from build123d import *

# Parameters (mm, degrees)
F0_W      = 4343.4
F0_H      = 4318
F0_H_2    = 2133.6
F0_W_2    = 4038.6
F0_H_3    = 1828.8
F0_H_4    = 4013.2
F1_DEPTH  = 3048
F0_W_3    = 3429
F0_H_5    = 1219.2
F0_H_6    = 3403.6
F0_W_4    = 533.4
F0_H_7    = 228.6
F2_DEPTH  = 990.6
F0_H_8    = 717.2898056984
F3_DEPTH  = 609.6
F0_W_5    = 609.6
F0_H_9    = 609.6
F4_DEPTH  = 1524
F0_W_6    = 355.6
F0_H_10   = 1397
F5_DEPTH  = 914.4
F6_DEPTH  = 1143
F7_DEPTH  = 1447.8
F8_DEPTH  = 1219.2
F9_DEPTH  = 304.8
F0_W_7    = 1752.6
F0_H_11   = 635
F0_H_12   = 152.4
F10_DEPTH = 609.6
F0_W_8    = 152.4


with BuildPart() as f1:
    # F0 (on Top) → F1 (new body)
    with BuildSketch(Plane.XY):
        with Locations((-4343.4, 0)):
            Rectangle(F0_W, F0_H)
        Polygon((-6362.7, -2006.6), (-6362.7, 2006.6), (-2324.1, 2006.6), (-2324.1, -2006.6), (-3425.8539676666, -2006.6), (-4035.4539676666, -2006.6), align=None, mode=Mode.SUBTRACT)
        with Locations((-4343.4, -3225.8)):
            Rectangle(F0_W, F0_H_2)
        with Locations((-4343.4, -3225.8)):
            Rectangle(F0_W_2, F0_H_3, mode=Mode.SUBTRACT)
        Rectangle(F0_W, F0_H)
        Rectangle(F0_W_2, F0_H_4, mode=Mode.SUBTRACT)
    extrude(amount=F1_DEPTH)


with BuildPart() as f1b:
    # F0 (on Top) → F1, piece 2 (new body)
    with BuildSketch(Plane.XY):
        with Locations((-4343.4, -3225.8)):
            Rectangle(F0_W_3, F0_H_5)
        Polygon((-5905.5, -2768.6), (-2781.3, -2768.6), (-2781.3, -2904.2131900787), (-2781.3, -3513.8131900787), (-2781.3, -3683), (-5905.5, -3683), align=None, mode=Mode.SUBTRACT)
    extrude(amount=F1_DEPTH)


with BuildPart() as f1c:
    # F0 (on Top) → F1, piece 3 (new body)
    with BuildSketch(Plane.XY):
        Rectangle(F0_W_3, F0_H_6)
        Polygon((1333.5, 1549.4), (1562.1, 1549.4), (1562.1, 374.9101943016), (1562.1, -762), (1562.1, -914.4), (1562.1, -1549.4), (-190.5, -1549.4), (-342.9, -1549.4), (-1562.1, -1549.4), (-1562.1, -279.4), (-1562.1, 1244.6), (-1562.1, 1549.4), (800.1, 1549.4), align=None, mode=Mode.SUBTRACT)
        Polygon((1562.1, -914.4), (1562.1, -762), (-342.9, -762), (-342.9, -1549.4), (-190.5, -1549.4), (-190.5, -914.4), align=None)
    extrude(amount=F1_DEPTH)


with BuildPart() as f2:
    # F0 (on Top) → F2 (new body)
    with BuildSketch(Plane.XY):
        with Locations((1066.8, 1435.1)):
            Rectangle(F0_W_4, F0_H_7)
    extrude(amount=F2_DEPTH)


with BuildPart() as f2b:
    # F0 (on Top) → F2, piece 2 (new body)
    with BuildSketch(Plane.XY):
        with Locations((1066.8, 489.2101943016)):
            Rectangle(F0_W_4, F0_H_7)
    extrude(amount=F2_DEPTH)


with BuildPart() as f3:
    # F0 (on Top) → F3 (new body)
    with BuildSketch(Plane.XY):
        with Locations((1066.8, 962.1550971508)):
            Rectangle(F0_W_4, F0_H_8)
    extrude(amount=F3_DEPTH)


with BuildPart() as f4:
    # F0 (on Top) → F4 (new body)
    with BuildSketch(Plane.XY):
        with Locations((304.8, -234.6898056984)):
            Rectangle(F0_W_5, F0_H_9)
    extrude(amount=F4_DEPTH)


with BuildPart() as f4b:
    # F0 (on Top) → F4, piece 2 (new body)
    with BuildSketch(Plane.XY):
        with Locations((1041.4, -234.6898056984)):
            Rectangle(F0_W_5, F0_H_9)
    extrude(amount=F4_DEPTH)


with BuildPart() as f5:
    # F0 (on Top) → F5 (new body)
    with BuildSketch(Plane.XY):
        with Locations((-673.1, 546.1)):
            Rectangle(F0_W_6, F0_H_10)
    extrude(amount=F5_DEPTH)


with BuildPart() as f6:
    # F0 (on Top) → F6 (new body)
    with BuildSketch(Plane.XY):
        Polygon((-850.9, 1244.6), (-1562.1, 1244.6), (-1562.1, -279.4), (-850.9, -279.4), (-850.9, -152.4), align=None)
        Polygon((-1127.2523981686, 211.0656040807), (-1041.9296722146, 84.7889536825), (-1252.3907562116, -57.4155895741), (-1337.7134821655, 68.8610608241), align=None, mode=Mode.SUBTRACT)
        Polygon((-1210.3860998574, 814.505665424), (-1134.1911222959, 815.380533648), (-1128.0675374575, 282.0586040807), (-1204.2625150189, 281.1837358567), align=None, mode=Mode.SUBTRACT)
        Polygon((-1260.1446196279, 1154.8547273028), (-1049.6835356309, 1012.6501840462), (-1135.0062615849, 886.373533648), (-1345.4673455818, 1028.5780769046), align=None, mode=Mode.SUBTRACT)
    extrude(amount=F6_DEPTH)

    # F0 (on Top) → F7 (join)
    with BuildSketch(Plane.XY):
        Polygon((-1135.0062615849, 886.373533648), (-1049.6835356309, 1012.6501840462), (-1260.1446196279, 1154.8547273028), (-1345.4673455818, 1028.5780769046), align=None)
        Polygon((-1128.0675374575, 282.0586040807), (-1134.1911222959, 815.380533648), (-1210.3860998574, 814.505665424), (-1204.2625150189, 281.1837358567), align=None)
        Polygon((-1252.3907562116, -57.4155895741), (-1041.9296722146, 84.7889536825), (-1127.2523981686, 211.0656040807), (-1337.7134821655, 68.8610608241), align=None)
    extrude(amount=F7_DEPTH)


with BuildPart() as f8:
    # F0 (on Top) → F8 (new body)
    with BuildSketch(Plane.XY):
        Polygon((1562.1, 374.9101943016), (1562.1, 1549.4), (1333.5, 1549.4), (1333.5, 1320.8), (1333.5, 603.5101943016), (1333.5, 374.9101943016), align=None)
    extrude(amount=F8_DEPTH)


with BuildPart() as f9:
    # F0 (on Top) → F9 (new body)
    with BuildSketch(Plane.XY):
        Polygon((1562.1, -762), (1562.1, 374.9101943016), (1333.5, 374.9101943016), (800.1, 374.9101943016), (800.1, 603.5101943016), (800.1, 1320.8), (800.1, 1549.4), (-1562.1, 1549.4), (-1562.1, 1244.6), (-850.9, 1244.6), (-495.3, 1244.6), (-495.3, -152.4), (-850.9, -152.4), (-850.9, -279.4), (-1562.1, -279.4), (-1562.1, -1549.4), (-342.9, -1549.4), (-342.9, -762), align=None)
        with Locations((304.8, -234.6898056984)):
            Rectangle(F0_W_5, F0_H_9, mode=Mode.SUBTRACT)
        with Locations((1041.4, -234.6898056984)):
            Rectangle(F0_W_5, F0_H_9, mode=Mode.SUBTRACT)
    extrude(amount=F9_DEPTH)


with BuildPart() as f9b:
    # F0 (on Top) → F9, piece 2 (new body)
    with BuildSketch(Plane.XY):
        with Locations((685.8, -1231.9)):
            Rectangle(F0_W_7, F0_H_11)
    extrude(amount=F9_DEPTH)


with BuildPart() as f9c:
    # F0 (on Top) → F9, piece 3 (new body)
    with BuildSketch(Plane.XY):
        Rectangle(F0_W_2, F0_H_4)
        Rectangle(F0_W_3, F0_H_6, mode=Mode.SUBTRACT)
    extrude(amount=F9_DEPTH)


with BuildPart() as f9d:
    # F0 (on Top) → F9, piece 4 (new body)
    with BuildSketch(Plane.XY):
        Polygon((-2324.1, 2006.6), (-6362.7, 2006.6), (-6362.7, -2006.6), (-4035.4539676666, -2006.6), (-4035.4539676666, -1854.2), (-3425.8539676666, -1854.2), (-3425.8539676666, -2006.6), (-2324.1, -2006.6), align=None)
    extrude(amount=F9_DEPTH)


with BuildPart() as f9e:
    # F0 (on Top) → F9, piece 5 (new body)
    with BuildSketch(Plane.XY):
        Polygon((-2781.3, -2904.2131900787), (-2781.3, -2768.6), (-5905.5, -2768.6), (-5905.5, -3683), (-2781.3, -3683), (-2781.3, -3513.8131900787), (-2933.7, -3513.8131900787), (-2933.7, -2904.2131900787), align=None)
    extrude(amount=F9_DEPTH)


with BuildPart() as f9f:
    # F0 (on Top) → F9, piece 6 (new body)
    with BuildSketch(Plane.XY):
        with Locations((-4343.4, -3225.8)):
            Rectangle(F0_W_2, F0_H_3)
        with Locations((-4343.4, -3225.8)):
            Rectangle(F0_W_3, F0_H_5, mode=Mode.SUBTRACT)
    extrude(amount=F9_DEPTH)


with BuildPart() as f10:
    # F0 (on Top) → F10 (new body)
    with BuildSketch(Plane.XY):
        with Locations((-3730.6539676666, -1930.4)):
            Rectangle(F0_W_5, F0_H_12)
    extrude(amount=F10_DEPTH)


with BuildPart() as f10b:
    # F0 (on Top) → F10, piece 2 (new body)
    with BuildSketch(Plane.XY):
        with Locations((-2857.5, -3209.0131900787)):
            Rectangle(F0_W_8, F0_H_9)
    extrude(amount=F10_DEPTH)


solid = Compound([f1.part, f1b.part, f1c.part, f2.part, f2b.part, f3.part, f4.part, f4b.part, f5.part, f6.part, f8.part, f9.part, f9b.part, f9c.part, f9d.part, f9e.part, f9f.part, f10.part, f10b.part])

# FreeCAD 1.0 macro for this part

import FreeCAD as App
import Part
import Sketcher

V = App.Vector
Q = App.Units.Quantity

doc = App.newDocument("Part")
body = doc.addObject("PartDesign::Body", "Body")

# Sketch on XY plane
sketch1 = doc.addObject("Sketcher::SketchObject", "Sketch")
body.addObject(sketch1)
sketch1.AttachmentSupport = (doc.XY_Plane, [""])
sketch1.MapMode = "FlatFace"
sketch1.addGeometry([
    Part.LineSegment(V(-6515, 2159, 0), V(-6515, -4293, 0)),  # 0
    Part.LineSegment(V(-6515, -4293, 0), V(-2172, -4293, 0)),  # 1
    Part.LineSegment(V(-2172, -4293, 0), V(-2172, -2159, 0)),  # 2
    Part.LineSegment(V(-2172, -2159, 0), V(2172, -2159, 0)),  # 3
    Part.LineSegment(V(2172, -2159, 0), V(2172, 2159, 0)),  # 4
    Part.LineSegment(V(2172, 2159, 0), V(-6515, 2159, 0)),  # 5
    Part.LineSegment(V(-2324, -4140, 0), V(-6363, -4140, 0)),  # 6
    Part.LineSegment(V(-6363, -4140, 0), V(-6363, -2311, 0)),  # 7
    Part.LineSegment(V(-6363, -2311, 0), V(-2324, -2311, 0)),  # 8
    Part.LineSegment(V(-2324, -2311, 0), V(-2324, -4140, 0)),  # 9
    Part.LineSegment(V(-2324, -2007, 0), V(-6363, -2007, 0)),  # 10
    Part.LineSegment(V(-6363, -2007, 0), V(-6363, 2007, 0)),  # 11
    Part.LineSegment(V(-6363, 2007, 0), V(-2324, 2007, 0)),  # 12
    Part.LineSegment(V(-2324, 2007, 0), V(-2324, -2007, 0)),  # 13
    Part.LineSegment(V(2019, -2007, 0), V(-2019, -2007, 0)),  # 14
    Part.LineSegment(V(-2019, -2007, 0), V(-2019, 2007, 0)),  # 15
    Part.LineSegment(V(-2019, 2007, 0), V(2019, 2007, 0)),  # 16
    Part.LineSegment(V(2019, 2007, 0), V(2019, -2007, 0)),  # 17
], False)
sketch1.addConstraint([
    Sketcher.Constraint("Coincident", 0, 2, 1, 1),
    Sketcher.Constraint("Coincident", 1, 2, 2, 1),
    Sketcher.Constraint("Coincident", 2, 2, 3, 1),
    Sketcher.Constraint("Coincident", 3, 2, 4, 1),
    Sketcher.Constraint("Coincident", 4, 2, 5, 1),
    Sketcher.Constraint("Coincident", 5, 2, 0, 1),
    Sketcher.Constraint("Coincident", 6, 2, 7, 1),
    Sketcher.Constraint("Coincident", 7, 2, 8, 1),
    Sketcher.Constraint("Coincident", 8, 2, 9, 1),
    Sketcher.Constraint("Coincident", 9, 2, 6, 1),
    Sketcher.Constraint("Coincident", 10, 2, 11, 1),
    Sketcher.Constraint("Coincident", 11, 2, 12, 1),
    Sketcher.Constraint("Coincident", 12, 2, 13, 1),
    Sketcher.Constraint("Coincident", 13, 2, 10, 1),
    Sketcher.Constraint("Coincident", 14, 2, 15, 1),
    Sketcher.Constraint("Coincident", 15, 2, 16, 1),
    Sketcher.Constraint("Coincident", 16, 2, 17, 1),
    Sketcher.Constraint("Coincident", 17, 2, 14, 1),
    Sketcher.Constraint("Vertical", 0),
    Sketcher.Constraint("Horizontal", 1),
    Sketcher.Constraint("Vertical", 2),
    Sketcher.Constraint("Horizontal", 3),
    Sketcher.Constraint("Vertical", 4),
    Sketcher.Constraint("Horizontal", 5),
    Sketcher.Constraint("Horizontal", 6),
    Sketcher.Constraint("Vertical", 7),
    Sketcher.Constraint("Horizontal", 8),
    Sketcher.Constraint("Vertical", 9),
    Sketcher.Constraint("Horizontal", 10),
    Sketcher.Constraint("Vertical", 11),
    Sketcher.Constraint("Horizontal", 12),
    Sketcher.Constraint("Vertical", 13),
    Sketcher.Constraint("Horizontal", 14),
    Sketcher.Constraint("Vertical", 15),
    Sketcher.Constraint("Horizontal", 16),
    Sketcher.Constraint("Vertical", 17),
    Sketcher.Constraint("Symmetric", 2, 2, 4, 2, -1, 1),
    Sketcher.Constraint("Symmetric", 14, 2, 16, 2, -1, 1),
    Sketcher.Constraint("Horizontal", 13, 2, 14, 2),
    Sketcher.Constraint("Horizontal", 12, 2, 15, 2),
    Sketcher.Constraint("Vertical", 7, 2, 10, 2),
    Sketcher.Constraint("Vertical", 9, 2, 12, 2),
    Sketcher.Constraint("Equal", 1, 3),
    Sketcher.Constraint("Equal", 12, 14),
    Sketcher.Constraint("DistanceX", 1, 1, 1, 2, Q("171 in")),
    Sketcher.Constraint("DistanceX", 6, 2, 6, 1, Q("159 in")),
    Sketcher.Constraint("DistanceY", 0, 2, 0, 1, Q("254 in")),
    Sketcher.Constraint("DistanceY", 2, 1, 2, 2, Q("84 in")),
    Sketcher.Constraint("DistanceY", 7, 1, 7, 2, Q("72 in")),
    Sketcher.Constraint("DistanceY", 11, 1, 11, 2, Q("158 in")),
    Sketcher.Constraint("DistanceY", 6, 2, -1, 1, Q("163 in")),
    Sketcher.Constraint("DistanceX", 0, 2, 6, 2, Q("6 in")),
])
pad1 = doc.addObject("PartDesign::Pad", "Pad")
body.addObject(pad1)
pad1.Profile = sketch1
pad1.Length = Q("120 in")
body2 = doc.addObject("PartDesign::Body", "Body001")

# Sketch on XY plane
sketch2 = doc.addObject("Sketcher::SketchObject", "Sketch001")
body2.addObject(sketch2)
sketch2.AttachmentSupport = (doc.getObject("XY_Plane001"), [""])
sketch2.MapMode = "FlatFace"
sketch2.addGeometry([
    Part.LineSegment(V(-6058, -2616, 0), V(-6058, -3835, 0)),  # 0
    Part.LineSegment(V(-6058, -3835, 0), V(-2629, -3835, 0)),  # 1
    Part.LineSegment(V(-2629, -3835, 0), V(-2629, -2616, 0)),  # 2
    Part.LineSegment(V(-2629, -2616, 0), V(-6058, -2616, 0)),  # 3
    Part.LineSegment(V(-5906, -3683, 0), V(-5906, -2769, 0)),  # 4
    Part.LineSegment(V(-5906, -2769, 0), V(-2781, -2769, 0)),  # 5
    Part.LineSegment(V(-2781, -2769, 0), V(-2781, -3683, 0)),  # 6
    Part.LineSegment(V(-2781, -3683, 0), V(-5906, -3683, 0)),  # 7
], False)
sketch2.addConstraint([
    Sketcher.Constraint("Coincident", 0, 2, 1, 1),
    Sketcher.Constraint("Coincident", 1, 2, 2, 1),
    Sketcher.Constraint("Coincident", 2, 2, 3, 1),
    Sketcher.Constraint("Coincident", 3, 2, 0, 1),
    Sketcher.Constraint("Coincident", 4, 2, 5, 1),
    Sketcher.Constraint("Coincident", 5, 2, 6, 1),
    Sketcher.Constraint("Coincident", 6, 2, 7, 1),
    Sketcher.Constraint("Coincident", 7, 2, 4, 1),
    Sketcher.Constraint("Vertical", 0),
    Sketcher.Constraint("Horizontal", 1),
    Sketcher.Constraint("Vertical", 2),
    Sketcher.Constraint("Horizontal", 3),
    Sketcher.Constraint("Vertical", 4),
    Sketcher.Constraint("Horizontal", 5),
    Sketcher.Constraint("Vertical", 6),
    Sketcher.Constraint("Horizontal", 7),
    Sketcher.Constraint("DistanceX", 1, 1, 1, 2, Q("135 in")),
    Sketcher.Constraint("DistanceX", 5, 1, 5, 2, Q("123 in")),
    Sketcher.Constraint("DistanceY", 0, 2, 0, 1, Q("48 in")),
    Sketcher.Constraint("DistanceY", 4, 1, 4, 2, Q("36 in")),
    Sketcher.Constraint("DistanceY", 0, 2, -1, 1, Q("151 in")),
    Sketcher.Constraint("DistanceY", 4, 2, -1, 1, Q("109 in")),
    Sketcher.Constraint("DistanceX", 3, 2, 4, 2, Q("6 in")),
    Sketcher.Constraint("DistanceX", 0, 2, -1, 1, Q("238.5 in")),
])
pad2 = doc.addObject("PartDesign::Pad", "Pad001")
body2.addObject(pad2)
pad2.Profile = sketch2
pad2.Length = Q("120 in")
body3 = doc.addObject("PartDesign::Body", "Body002")

# Sketch on XY plane
sketch3 = doc.addObject("Sketcher::SketchObject", "Sketch002")
body3.addObject(sketch3)
sketch3.AttachmentSupport = (doc.getObject("XY_Plane002"), [""])
sketch3.MapMode = "FlatFace"
sketch3.addGeometry([
    Part.LineSegment(V(-1714, 1702, 0), V(-1714, -1702, 0)),  # 0
    Part.LineSegment(V(-1714, -1702, 0), V(1714, -1702, 0)),  # 1
    Part.LineSegment(V(1714, -1702, 0), V(1714, 1702, 0)),  # 2
    Part.LineSegment(V(1714, 1702, 0), V(-1714, 1702, 0)),  # 3
    Part.LineSegment(V(-1562, 1549, 0), V(1562, 1549, 0)),  # 4
    Part.LineSegment(V(1562, 1549, 0), V(1562, -762, 0)),  # 5
    Part.LineSegment(V(1562, -762, 0), V(-343, -762, 0)),  # 6
    Part.LineSegment(V(-343, -762, 0), V(-343, -1549, 0)),  # 7
    Part.LineSegment(V(-343, -1549, 0), V(-1562, -1549, 0)),  # 8
    Part.LineSegment(V(-1562, -1549, 0), V(-1562, 1549, 0)),  # 9
    Part.LineSegment(V(1562, -914, 0), V(1562, -1549, 0)),  # 10
    Part.LineSegment(V(1562, -1549, 0), V(-190, -1549, 0)),  # 11
    Part.LineSegment(V(-190, -1549, 0), V(-190, -914, 0)),  # 12
    Part.LineSegment(V(-190, -914, 0), V(1562, -914, 0)),  # 13
], False)
sketch3.addConstraint([
    Sketcher.Constraint("Coincident", 0, 2, 1, 1),
    Sketcher.Constraint("Coincident", 1, 2, 2, 1),
    Sketcher.Constraint("Coincident", 2, 2, 3, 1),
    Sketcher.Constraint("Coincident", 3, 2, 0, 1),
    Sketcher.Constraint("Coincident", 4, 2, 5, 1),
    Sketcher.Constraint("Coincident", 5, 2, 6, 1),
    Sketcher.Constraint("Coincident", 6, 2, 7, 1),
    Sketcher.Constraint("Coincident", 7, 2, 8, 1),
    Sketcher.Constraint("Coincident", 8, 2, 9, 1),
    Sketcher.Constraint("Coincident", 9, 2, 4, 1),
    Sketcher.Constraint("Coincident", 10, 2, 11, 1),
    Sketcher.Constraint("Coincident", 11, 2, 12, 1),
    Sketcher.Constraint("Coincident", 12, 2, 13, 1),
    Sketcher.Constraint("Coincident", 13, 2, 10, 1),
    Sketcher.Constraint("Vertical", 0),
    Sketcher.Constraint("Horizontal", 1),
    Sketcher.Constraint("Vertical", 2),
    Sketcher.Constraint("Horizontal", 3),
    Sketcher.Constraint("Horizontal", 4),
    Sketcher.Constraint("Vertical", 5),
    Sketcher.Constraint("Horizontal", 6),
    Sketcher.Constraint("Vertical", 7),
    Sketcher.Constraint("Horizontal", 8),
    Sketcher.Constraint("Vertical", 9),
    Sketcher.Constraint("Vertical", 10),
    Sketcher.Constraint("Horizontal", 11),
    Sketcher.Constraint("Vertical", 12),
    Sketcher.Constraint("Horizontal", 13),
    Sketcher.Constraint("Symmetric", 0, 2, 2, 2, -1, 1),
    Sketcher.Constraint("Symmetric", 4, 2, 8, 2, -1, 1),
    Sketcher.Constraint("Symmetric", 9, 2, 10, 2, -1, 1),
    Sketcher.Constraint("DistanceX", 1, 1, 1, 2, Q("135 in")),
    Sketcher.Constraint("DistanceX", 4, 1, 4, 2, Q("123 in")),
    Sketcher.Constraint("DistanceX", 6, 2, 6, 1, Q("75 in")),
    Sketcher.Constraint("DistanceX", 11, 2, 11, 1, Q("69 in")),
    Sketcher.Constraint("DistanceY", 0, 2, 0, 1, Q("134 in")),
    Sketcher.Constraint("DistanceY", 5, 2, 5, 1, Q("91 in")),
    Sketcher.Constraint("DistanceY", 7, 2, 7, 1, Q("31 in")),
    Sketcher.Constraint("DistanceY", 10, 2, 10, 1, Q("25 in")),
])
pad3 = doc.addObject("PartDesign::Pad", "Pad002")
body3.addObject(pad3)
pad3.Profile = sketch3
pad3.Length = Q("120 in")
body4 = doc.addObject("PartDesign::Body", "Body003")

# Sketch on XY plane
sketch4 = doc.addObject("Sketcher::SketchObject", "Sketch003")
body4.addObject(sketch4)
sketch4.AttachmentSupport = (doc.getObject("XY_Plane003"), [""])
sketch4.MapMode = "FlatFace"
sketch4.addGeometry([
    Part.LineSegment(V(800, 1549, 0), V(800, 1321, 0)),
    Part.LineSegment(V(800, 1321, 0), V(1334, 1321, 0)),
    Part.LineSegment(V(1334, 1321, 0), V(1334, 1549, 0)),
    Part.LineSegment(V(1334, 1549, 0), V(800, 1549, 0)),
], False)
sketch4.addConstraint([
    Sketcher.Constraint("Coincident", 0, 2, 1, 1),
    Sketcher.Constraint("Coincident", 1, 2, 2, 1),
    Sketcher.Constraint("Coincident", 2, 2, 3, 1),
    Sketcher.Constraint("Coincident", 3, 2, 0, 1),
    Sketcher.Constraint("Vertical", 0),
    Sketcher.Constraint("Horizontal", 1),
    Sketcher.Constraint("Vertical", 2),
    Sketcher.Constraint("Horizontal", 3),
    Sketcher.Constraint("DistanceX", 1, 1, 1, 2, Q("21 in")),
    Sketcher.Constraint("DistanceY", 0, 2, 0, 1, Q("9 in")),
    Sketcher.Constraint("DistanceY", -1, 1, 0, 2, Q("52 in")),
    Sketcher.Constraint("DistanceX", -1, 1, 0, 2, Q("31.5 in")),
])
pad4 = doc.addObject("PartDesign::Pad", "Pad003")
body4.addObject(pad4)
pad4.Profile = sketch4
pad4.Length = Q("39 in")
body5 = doc.addObject("PartDesign::Body", "Body004")

# Sketch on XY plane
sketch5 = doc.addObject("Sketcher::SketchObject", "Sketch004")
body5.addObject(sketch5)
sketch5.AttachmentSupport = (doc.getObject("XY_Plane004"), [""])
sketch5.MapMode = "FlatFace"
sketch5.addGeometry([
    Part.LineSegment(V(800, 604, 0), V(800, 375, 0)),
    Part.LineSegment(V(800, 375, 0), V(1334, 375, 0)),
    Part.LineSegment(V(1334, 375, 0), V(1334, 604, 0)),
    Part.LineSegment(V(1334, 604, 0), V(800, 604, 0)),
], False)
sketch5.addConstraint([
    Sketcher.Constraint("Coincident", 0, 2, 1, 1),
    Sketcher.Constraint("Coincident", 1, 2, 2, 1),
    Sketcher.Constraint("Coincident", 2, 2, 3, 1),
    Sketcher.Constraint("Coincident", 3, 2, 0, 1),
    Sketcher.Constraint("Vertical", 0),
    Sketcher.Constraint("Horizontal", 1),
    Sketcher.Constraint("Vertical", 2),
    Sketcher.Constraint("Horizontal", 3),
    Sketcher.Constraint("DistanceX", 1, 1, 1, 2, Q("21 in")),
    Sketcher.Constraint("DistanceY", 0, 2, 0, 1, Q("9 in")),
    Sketcher.Constraint("DistanceX", -1, 1, 0, 2, Q("31.5 in")),
    Sketcher.Constraint("DistanceY", -1, 1, 0, 2, Q("374.910194 mm")),
])
pad5 = doc.addObject("PartDesign::Pad", "Pad004")
body5.addObject(pad5)
pad5.Profile = sketch5
pad5.Length = Q("39 in")
body6 = doc.addObject("PartDesign::Body", "Body005")

# Sketch on XY plane
sketch6 = doc.addObject("Sketcher::SketchObject", "Sketch005")
body6.addObject(sketch6)
sketch6.AttachmentSupport = (doc.getObject("XY_Plane005"), [""])
sketch6.MapMode = "FlatFace"
sketch6.addGeometry([
    Part.LineSegment(V(800, 1321, 0), V(800, 604, 0)),
    Part.LineSegment(V(800, 604, 0), V(1334, 604, 0)),
    Part.LineSegment(V(1334, 604, 0), V(1334, 1321, 0)),
    Part.LineSegment(V(1334, 1321, 0), V(800, 1321, 0)),
], False)
sketch6.addConstraint([
    Sketcher.Constraint("Coincident", 0, 2, 1, 1),
    Sketcher.Constraint("Coincident", 1, 2, 2, 1),
    Sketcher.Constraint("Coincident", 2, 2, 3, 1),
    Sketcher.Constraint("Coincident", 3, 2, 0, 1),
    Sketcher.Constraint("Vertical", 0),
    Sketcher.Constraint("Horizontal", 1),
    Sketcher.Constraint("Vertical", 2),
    Sketcher.Constraint("Horizontal", 3),
    Sketcher.Constraint("DistanceX", 1, 1, 1, 2, Q("21 in")),
    Sketcher.Constraint("DistanceY", -1, 1, 2, 2, Q("52 in")),
    Sketcher.Constraint("DistanceX", -1, 1, 0, 2, Q("31.5 in")),
    Sketcher.Constraint("DistanceY", 0, 2, 0, 1, Q("717.289806 mm")),
])
pad6 = doc.addObject("PartDesign::Pad", "Pad005")
body6.addObject(pad6)
pad6.Profile = sketch6
pad6.Length = Q("24 in")
body7 = doc.addObject("PartDesign::Body", "Body006")

# Sketch on XY plane
sketch7 = doc.addObject("Sketcher::SketchObject", "Sketch006")
body7.addObject(sketch7)
sketch7.AttachmentSupport = (doc.getObject("XY_Plane006"), [""])
sketch7.MapMode = "FlatFace"
sketch7.addGeometry([
    Part.LineSegment(V(0, 70, 0), V(0, -539, 0)),
    Part.LineSegment(V(0, -539, 0), V(610, -539, 0)),
    Part.LineSegment(V(610, -539, 0), V(610, 70, 0)),
    Part.LineSegment(V(610, 70, 0), V(0, 70, 0)),
], False)
sketch7.addConstraint([
    Sketcher.Constraint("Coincident", 0, 2, 1, 1),
    Sketcher.Constraint("Coincident", 1, 2, 2, 1),
    Sketcher.Constraint("Coincident", 2, 2, 3, 1),
    Sketcher.Constraint("Coincident", 3, 2, 0, 1),
    Sketcher.Constraint("Vertical", 0),
    Sketcher.Constraint("Horizontal", 1),
    Sketcher.Constraint("Vertical", 2),
    Sketcher.Constraint("Horizontal", 3),
    Sketcher.Constraint("PointOnObject", 0, 2, -2),
    Sketcher.Constraint("Equal", 3, 0),
    Sketcher.Constraint("DistanceX", 1, 1, 1, 2, Q("24 in")),
    Sketcher.Constraint("DistanceY", 0, 2, -1, 1, Q("539.489806 mm")),
])
pad7 = doc.addObject("PartDesign::Pad", "Pad006")
body7.addObject(pad7)
pad7.Profile = sketch7
pad7.Length = Q("60 in")
body8 = doc.addObject("PartDesign::Body", "Body007")

# Sketch on XY plane
sketch8 = doc.addObject("Sketcher::SketchObject", "Sketch007")
body8.addObject(sketch8)
sketch8.AttachmentSupport = (doc.getObject("XY_Plane007"), [""])
sketch8.MapMode = "FlatFace"
sketch8.addGeometry([
    Part.LineSegment(V(737, 70, 0), V(737, -539, 0)),
    Part.LineSegment(V(737, -539, 0), V(1346, -539, 0)),
    Part.LineSegment(V(1346, -539, 0), V(1346, 70, 0)),
    Part.LineSegment(V(1346, 70, 0), V(737, 70, 0)),
], False)
sketch8.addConstraint([
    Sketcher.Constraint("Coincident", 0, 2, 1, 1),
    Sketcher.Constraint("Coincident", 1, 2, 2, 1),
    Sketcher.Constraint("Coincident", 2, 2, 3, 1),
    Sketcher.Constraint("Coincident", 3, 2, 0, 1),
    Sketcher.Constraint("Vertical", 0),
    Sketcher.Constraint("Horizontal", 1),
    Sketcher.Constraint("Vertical", 2),
    Sketcher.Constraint("Horizontal", 3),
    Sketcher.Constraint("Equal", 3, 0),
    Sketcher.Constraint("DistanceX", 1, 1, 1, 2, Q("24 in")),
    Sketcher.Constraint("DistanceX", -1, 1, 0, 2, Q("29 in")),
    Sketcher.Constraint("DistanceY", 0, 2, -1, 1, Q("539.489806 mm")),
])
pad8 = doc.addObject("PartDesign::Pad", "Pad007")
body8.addObject(pad8)
pad8.Profile = sketch8
pad8.Length = Q("60 in")
body9 = doc.addObject("PartDesign::Body", "Body008")

# Sketch on XY plane
sketch9 = doc.addObject("Sketcher::SketchObject", "Sketch008")
body9.addObject(sketch9)
sketch9.AttachmentSupport = (doc.getObject("XY_Plane008"), [""])
sketch9.MapMode = "FlatFace"
sketch9.addGeometry([
    Part.LineSegment(V(-851, 1245, 0), V(-851, -152, 0)),
    Part.LineSegment(V(-851, -152, 0), V(-495, -152, 0)),
    Part.LineSegment(V(-495, -152, 0), V(-495, 1245, 0)),
    Part.LineSegment(V(-495, 1245, 0), V(-851, 1245, 0)),
], False)
sketch9.addConstraint([
    Sketcher.Constraint("Coincident", 0, 2, 1, 1),
    Sketcher.Constraint("Coincident", 1, 2, 2, 1),
    Sketcher.Constraint("Coincident", 2, 2, 3, 1),
    Sketcher.Constraint("Coincident", 3, 2, 0, 1),
    Sketcher.Constraint("Vertical", 0),
    Sketcher.Constraint("Horizontal", 1),
    Sketcher.Constraint("Vertical", 2),
    Sketcher.Constraint("Horizontal", 3),
    Sketcher.Constraint("DistanceX", 1, 1, 1, 2, Q("14 in")),
    Sketcher.Constraint("DistanceY", 0, 2, 0, 1, Q("55 in")),
    Sketcher.Constraint("DistanceY", 0, 2, -1, 1, Q("6 in")),
    Sketcher.Constraint("DistanceX", 0, 2, -1, 1, Q("33.5 in")),
])
pad9 = doc.addObject("PartDesign::Pad", "Pad008")
body9.addObject(pad9)
pad9.Profile = sketch9
pad9.Length = Q("36 in")
body10 = doc.addObject("PartDesign::Body", "Body009")

# Sketch on XY plane
sketch10 = doc.addObject("Sketcher::SketchObject", "Sketch009")
body10.addObject(sketch10)
sketch10.AttachmentSupport = (doc.getObject("XY_Plane009"), [""])
sketch10.MapMode = "FlatFace"
sketch10.addGeometry([
    Part.LineSegment(V(-851, 1245, 0), V(-1562, 1245, 0)),  # 0
    Part.LineSegment(V(-1562, 1245, 0), V(-1562, -279, 0)),  # 1
    Part.LineSegment(V(-1562, -279, 0), V(-851, -279, 0)),  # 2
    Part.LineSegment(V(-851, -279, 0), V(-851, 1245, 0)),  # 3
    Part.LineSegment(V(-1338, 69, 0), V(-1127, 211, 0)),  # 4
    Part.LineSegment(V(-1127, 211, 0), V(-1042, 85, 0)),  # 5
    Part.LineSegment(V(-1042, 85, 0), V(-1252, -57, 0)),  # 6
    Part.LineSegment(V(-1252, -57, 0), V(-1338, 69, 0)),  # 7
    Part.LineSegment(V(-1204, 281, 0), V(-1210, 815, 0)),  # 8
    Part.LineSegment(V(-1210, 815, 0), V(-1134, 815, 0)),  # 9
    Part.LineSegment(V(-1134, 815, 0), V(-1128, 282, 0)),  # 10
    Part.LineSegment(V(-1128, 282, 0), V(-1204, 281, 0)),  # 11
    Part.LineSegment(V(-1345, 1029, 0), V(-1260, 1155, 0)),  # 12
    Part.LineSegment(V(-1260, 1155, 0), V(-1050, 1013, 0)),  # 13
    Part.LineSegment(V(-1050, 1013, 0), V(-1135, 886, 0)),  # 14
    Part.LineSegment(V(-1135, 886, 0), V(-1345, 1029, 0)),  # 15
], False)
sketch10.addConstraint([
    Sketcher.Constraint("Coincident", 0, 2, 1, 1),
    Sketcher.Constraint("Coincident", 1, 2, 2, 1),
    Sketcher.Constraint("Coincident", 2, 2, 3, 1),
    Sketcher.Constraint("Coincident", 3, 2, 0, 1),
    Sketcher.Constraint("Coincident", 4, 2, 5, 1),
    Sketcher.Constraint("Coincident", 5, 2, 6, 1),
    Sketcher.Constraint("Coincident", 6, 2, 7, 1),
    Sketcher.Constraint("Coincident", 7, 2, 4, 1),
    Sketcher.Constraint("Coincident", 8, 2, 9, 1),
    Sketcher.Constraint("Coincident", 9, 2, 10, 1),
    Sketcher.Constraint("Coincident", 10, 2, 11, 1),
    Sketcher.Constraint("Coincident", 11, 2, 8, 1),
    Sketcher.Constraint("Coincident", 12, 2, 13, 1),
    Sketcher.Constraint("Coincident", 13, 2, 14, 1),
    Sketcher.Constraint("Coincident", 14, 2, 15, 1),
    Sketcher.Constraint("Coincident", 15, 2, 12, 1),
    Sketcher.Constraint("Horizontal", 0),
    Sketcher.Constraint("Vertical", 1),
    Sketcher.Constraint("Horizontal", 2),
    Sketcher.Constraint("Vertical", 3),
    Sketcher.Constraint("Perpendicular", 4, 5),
    Sketcher.Constraint("Perpendicular", 5, 6),
    Sketcher.Constraint("Perpendicular", 6, 7),
    Sketcher.Constraint("Perpendicular", 8, 9),
    Sketcher.Constraint("Perpendicular", 9, 10),
    Sketcher.Constraint("Perpendicular", 10, 11),
    Sketcher.Constraint("Perpendicular", 12, 13),
    Sketcher.Constraint("Perpendicular", 13, 14),
    Sketcher.Constraint("Perpendicular", 14, 15),
    Sketcher.Constraint("Equal", 7, 12),
    Sketcher.Constraint("Equal", 6, 13),
    Sketcher.Constraint("DistanceX", 0, 2, 0, 1, Q("28 in")),
    Sketcher.Constraint("DistanceY", 1, 2, 1, 1, Q("60 in")),
    Sketcher.Constraint("Distance", 4, Q("10 in")),
    Sketcher.Constraint("Distance", 5, Q("6 in")),
    Sketcher.Constraint("Distance", 9, Q("3 in")),
    Sketcher.Constraint("DistanceY", -1, 1, 0, 2, Q("49 in")),
    Sketcher.Constraint("DistanceX", 0, 2, -1, 1, Q("61.5 in")),
    Sketcher.Constraint("DistanceY", 4, 2, 10, 2, Q("2.795 in")),
    Sketcher.Constraint("DistanceY", 9, 2, 14, 2, Q("2.795 in")),
    Sketcher.Constraint("DistanceY", -1, 1, 15, 2, Q("40.4951999 in")),
    Sketcher.Constraint("DistanceX", 4, 2, -1, 1, Q("1127.252398 mm")),
    Sketcher.Constraint("DistanceX", 8, 2, -1, 1, Q("1210.3861 mm")),
    Sketcher.Constraint("DistanceY", 6, 2, -1, 1, Q("57.41559 mm")),
    Sketcher.Constraint("DistanceY", -1, 1, 7, 2, Q("68.861061 mm")),
    Sketcher.Constraint("DistanceX", 12, 2, -1, 1, Q("1260.14462 mm")),
    Sketcher.Constraint("DistanceX", 14, 2, -1, 1, Q("1135.006262 mm")),
    Sketcher.Constraint("DistanceY", 4, 2, 8, 2, Q("603.440061 mm")),
])
pad10 = doc.addObject("PartDesign::Pad", "Pad009")
body10.addObject(pad10)
pad10.Profile = sketch10
pad10.Length = Q("45 in")

# Sketch on XY plane
sketch11 = doc.addObject("Sketcher::SketchObject", "Sketch010")
body10.addObject(sketch11)
sketch11.AttachmentSupport = (doc.getObject("XY_Plane009"), [""])
sketch11.MapMode = "FlatFace"
sketch11.addGeometry([
    Part.LineSegment(V(-1135, 886, 0), V(-1050, 1013, 0)),  # 0
    Part.LineSegment(V(-1050, 1013, 0), V(-1260, 1155, 0)),  # 1
    Part.LineSegment(V(-1260, 1155, 0), V(-1345, 1029, 0)),  # 2
    Part.LineSegment(V(-1345, 1029, 0), V(-1135, 886, 0)),  # 3
    Part.LineSegment(V(-1128, 282, 0), V(-1134, 815, 0)),  # 4
    Part.LineSegment(V(-1134, 815, 0), V(-1210, 815, 0)),  # 5
    Part.LineSegment(V(-1210, 815, 0), V(-1204, 281, 0)),  # 6
    Part.LineSegment(V(-1204, 281, 0), V(-1128, 282, 0)),  # 7
    Part.LineSegment(V(-1252, -57, 0), V(-1042, 85, 0)),  # 8
    Part.LineSegment(V(-1042, 85, 0), V(-1127, 211, 0)),  # 9
    Part.LineSegment(V(-1127, 211, 0), V(-1338, 69, 0)),  # 10
    Part.LineSegment(V(-1338, 69, 0), V(-1252, -57, 0)),  # 11
], False)
sketch11.addConstraint([
    Sketcher.Constraint("Coincident", 0, 2, 1, 1),
    Sketcher.Constraint("Coincident", 1, 2, 2, 1),
    Sketcher.Constraint("Coincident", 2, 2, 3, 1),
    Sketcher.Constraint("Coincident", 3, 2, 0, 1),
    Sketcher.Constraint("Coincident", 4, 2, 5, 1),
    Sketcher.Constraint("Coincident", 5, 2, 6, 1),
    Sketcher.Constraint("Coincident", 6, 2, 7, 1),
    Sketcher.Constraint("Coincident", 7, 2, 4, 1),
    Sketcher.Constraint("Coincident", 8, 2, 9, 1),
    Sketcher.Constraint("Coincident", 9, 2, 10, 1),
    Sketcher.Constraint("Coincident", 10, 2, 11, 1),
    Sketcher.Constraint("Coincident", 11, 2, 8, 1),
    Sketcher.Constraint("Perpendicular", 0, 1),
    Sketcher.Constraint("Perpendicular", 1, 2),
    Sketcher.Constraint("Perpendicular", 2, 3),
    Sketcher.Constraint("Perpendicular", 4, 5),
    Sketcher.Constraint("Perpendicular", 5, 6),
    Sketcher.Constraint("Perpendicular", 6, 7),
    Sketcher.Constraint("Perpendicular", 8, 9),
    Sketcher.Constraint("Perpendicular", 9, 10),
    Sketcher.Constraint("Perpendicular", 10, 11),
    Sketcher.Constraint("Equal", 3, 8),
    Sketcher.Constraint("Equal", 2, 9),
    Sketcher.Constraint("Distance", 0, Q("6 in")),
    Sketcher.Constraint("Distance", 1, Q("10 in")),
    Sketcher.Constraint("Distance", 5, Q("3 in")),
    Sketcher.Constraint("DistanceY", 4, 2, 3, 2, Q("2.795 in")),
    Sketcher.Constraint("DistanceY", 9, 2, 7, 2, Q("2.795 in")),
    Sketcher.Constraint("DistanceY", -1, 1, 2, 2, Q("40.4951999 in")),
    Sketcher.Constraint("DistanceX", 5, 2, -1, 1, Q("1210.3861 mm")),
    Sketcher.Constraint("DistanceX", 9, 2, -1, 1, Q("1127.252398 mm")),
    Sketcher.Constraint("DistanceX", 7, 2, 0, 2, Q("78.384002 mm")),
    Sketcher.Constraint("DistanceX", 1, 2, -1, 1, Q("1260.14462 mm")),
    Sketcher.Constraint("DistanceX", 3, 2, -1, 1, Q("1135.006262 mm")),
    Sketcher.Constraint("DistanceY", -1, 1, 10, 2, Q("68.861061 mm")),
    Sketcher.Constraint("DistanceY", 11, 2, -1, 1, Q("57.41559 mm")),
])
pad11 = doc.addObject("PartDesign::Pad", "Pad010")
body10.addObject(pad11)
pad11.Profile = sketch11
pad11.Length = Q("57 in")
body11 = doc.addObject("PartDesign::Body", "Body010")

# Sketch on XY plane
sketch12 = doc.addObject("Sketcher::SketchObject", "Sketch011")
body11.addObject(sketch12)
sketch12.AttachmentSupport = (doc.getObject("XY_Plane010"), [""])
sketch12.MapMode = "FlatFace"
sketch12.addGeometry([
    Part.LineSegment(V(1562, 375, 0), V(1562, 1549, 0)),
    Part.LineSegment(V(1562, 1549, 0), V(1334, 1549, 0)),
    Part.LineSegment(V(1334, 1549, 0), V(1334, 375, 0)),
    Part.LineSegment(V(1334, 375, 0), V(1562, 375, 0)),
], False)
sketch12.addConstraint([
    Sketcher.Constraint("Coincident", 0, 2, 1, 1),
    Sketcher.Constraint("Coincident", 1, 2, 2, 1),
    Sketcher.Constraint("Coincident", 2, 2, 3, 1),
    Sketcher.Constraint("Coincident", 3, 2, 0, 1),
    Sketcher.Constraint("Vertical", 0),
    Sketcher.Constraint("Horizontal", 1),
    Sketcher.Constraint("Vertical", 2),
    Sketcher.Constraint("Horizontal", 3),
    Sketcher.Constraint("DistanceX", 1, 2, 1, 1, Q("9 in")),
    Sketcher.Constraint("DistanceY", -1, 1, 0, 2, Q("61 in")),
    Sketcher.Constraint("DistanceX", -1, 1, 0, 2, Q("61.5 in")),
    Sketcher.Constraint("DistanceY", 0, 1, 0, 2, Q("1174.489806 mm")),
])
pad12 = doc.addObject("PartDesign::Pad", "Pad011")
body11.addObject(pad12)
pad12.Profile = sketch12
pad12.Length = Q("48 in")
body12 = doc.addObject("PartDesign::Body", "Body011")

# Sketch on XY plane
sketch13 = doc.addObject("Sketcher::SketchObject", "Sketch012")
body12.addObject(sketch13)
sketch13.AttachmentSupport = (doc.getObject("XY_Plane011"), [""])
sketch13.MapMode = "FlatFace"
sketch13.addGeometry([
    Part.LineSegment(V(1562, -762, 0), V(1562, 375, 0)),  # 0
    Part.LineSegment(V(1562, 375, 0), V(800, 375, 0)),  # 1
    Part.LineSegment(V(800, 375, 0), V(800, 1549, 0)),  # 2
    Part.LineSegment(V(800, 1549, 0), V(-1562, 1549, 0)),  # 3
    Part.LineSegment(V(-1562, 1549, 0), V(-1562, 1245, 0)),  # 4
    Part.LineSegment(V(-1562, 1245, 0), V(-495, 1245, 0)),  # 5
    Part.LineSegment(V(-495, 1245, 0), V(-495, -152, 0)),  # 6
    Part.LineSegment(V(-495, -152, 0), V(-851, -152, 0)),  # 7
    Part.LineSegment(V(-851, -152, 0), V(-851, -279, 0)),  # 8
    Part.LineSegment(V(-851, -279, 0), V(-1562, -279, 0)),  # 9
    Part.LineSegment(V(-1562, -279, 0), V(-1562, -1549, 0)),  # 10
    Part.LineSegment(V(-1562, -1549, 0), V(-343, -1549, 0)),  # 11
    Part.LineSegment(V(-343, -1549, 0), V(-343, -762, 0)),  # 12
    Part.LineSegment(V(-343, -762, 0), V(1562, -762, 0)),  # 13
    Part.LineSegment(V(610, -539, 0), V(0, -539, 0)),  # 14
    Part.LineSegment(V(0, -539, 0), V(0, 70, 0)),  # 15
    Part.LineSegment(V(0, 70, 0), V(610, 70, 0)),  # 16
    Part.LineSegment(V(610, 70, 0), V(610, -539, 0)),  # 17
    Part.LineSegment(V(1346, -539, 0), V(737, -539, 0)),  # 18
    Part.LineSegment(V(737, -539, 0), V(737, 70, 0)),  # 19
    Part.LineSegment(V(737, 70, 0), V(1346, 70, 0)),  # 20
    Part.LineSegment(V(1346, 70, 0), V(1346, -539, 0)),  # 21
], False)
sketch13.addConstraint([
    Sketcher.Constraint("Coincident", 0, 2, 1, 1),
    Sketcher.Constraint("Coincident", 1, 2, 2, 1),
    Sketcher.Constraint("Coincident", 2, 2, 3, 1),
    Sketcher.Constraint("Coincident", 3, 2, 4, 1),
    Sketcher.Constraint("Coincident", 4, 2, 5, 1),
    Sketcher.Constraint("Coincident", 5, 2, 6, 1),
    Sketcher.Constraint("Coincident", 6, 2, 7, 1),
    Sketcher.Constraint("Coincident", 7, 2, 8, 1),
    Sketcher.Constraint("Coincident", 8, 2, 9, 1),
    Sketcher.Constraint("Coincident", 9, 2, 10, 1),
    Sketcher.Constraint("Coincident", 10, 2, 11, 1),
    Sketcher.Constraint("Coincident", 11, 2, 12, 1),
    Sketcher.Constraint("Coincident", 12, 2, 13, 1),
    Sketcher.Constraint("Coincident", 13, 2, 0, 1),
    Sketcher.Constraint("Coincident", 14, 2, 15, 1),
    Sketcher.Constraint("Coincident", 15, 2, 16, 1),
    Sketcher.Constraint("Coincident", 16, 2, 17, 1),
    Sketcher.Constraint("Coincident", 17, 2, 14, 1),
    Sketcher.Constraint("Coincident", 18, 2, 19, 1),
    Sketcher.Constraint("Coincident", 19, 2, 20, 1),
    Sketcher.Constraint("Coincident", 20, 2, 21, 1),
    Sketcher.Constraint("Coincident", 21, 2, 18, 1),
    Sketcher.Constraint("Vertical", 0),
    Sketcher.Constraint("Horizontal", 1),
    Sketcher.Constraint("Vertical", 2),
    Sketcher.Constraint("Horizontal", 3),
    Sketcher.Constraint("Vertical", 4),
    Sketcher.Constraint("Horizontal", 5),
    Sketcher.Constraint("Vertical", 6),
    Sketcher.Constraint("Horizontal", 7),
    Sketcher.Constraint("Vertical", 8),
    Sketcher.Constraint("Horizontal", 9),
    Sketcher.Constraint("Vertical", 10),
    Sketcher.Constraint("Horizontal", 11),
    Sketcher.Constraint("Vertical", 12),
    Sketcher.Constraint("Horizontal", 13),
    Sketcher.Constraint("Horizontal", 14),
    Sketcher.Constraint("Vertical", 15),
    Sketcher.Constraint("Horizontal", 16),
    Sketcher.Constraint("Vertical", 17),
    Sketcher.Constraint("Horizontal", 18),
    Sketcher.Constraint("Vertical", 19),
    Sketcher.Constraint("Horizontal", 20),
    Sketcher.Constraint("Vertical", 21),
    Sketcher.Constraint("Symmetric", 3, 2, 10, 2, -1),
    Sketcher.Constraint("PointOnObject", 14, 2, -2),
    Sketcher.Constraint("Horizontal", 17, 2, 18, 2),
    Sketcher.Constraint("Horizontal", 16, 2, 19, 2),
    Sketcher.Constraint("Equal", 16, 18),
    Sketcher.Constraint("Equal", 20, 15),
    Sketcher.Constraint("DistanceX", 1, 2, 1, 1, Q("30 in")),
    Sketcher.Constraint("DistanceX", 3, 2, 3, 1, Q("93 in")),
    Sketcher.Constraint("DistanceX", 5, 1, 5, 2, Q("42 in")),
    Sketcher.Constraint("DistanceX", 7, 2, 7, 1, Q("14 in")),
    Sketcher.Constraint("DistanceX", 11, 1, 11, 2, Q("48 in")),
    Sketcher.Constraint("DistanceX", 14, 2, 14, 1, Q("24 in")),
    Sketcher.Constraint("DistanceY", 4, 2, 4, 1, Q("12 in")),
    Sketcher.Constraint("DistanceY", 6, 2, 6, 1, Q("55 in")),
    Sketcher.Constraint("DistanceY", 8, 2, 8, 1, Q("5 in")),
    Sketcher.Constraint("DistanceY", 10, 2, 10, 1, Q("50 in")),
    Sketcher.Constraint("DistanceY", 12, 1, 12, 2, Q("31 in")),
    Sketcher.Constraint("DistanceX", -1, 1, 18, 2, Q("29 in")),
    Sketcher.Constraint("DistanceY", 15, 2, 1, 2, Q("12 in")),
    Sketcher.Constraint("DistanceX", -1, 1, 0, 2, Q("61.5 in")),
    Sketcher.Constraint("DistanceY", 0, 1, 0, 2, Q("1136.910194 mm")),
])
pad13 = doc.addObject("PartDesign::Pad", "Pad012")
body12.addObject(pad13)
pad13.Profile = sketch13
pad13.Length = Q("12 in")
body13 = doc.addObject("PartDesign::Body", "Body012")

# Sketch on XY plane
sketch14 = doc.addObject("Sketcher::SketchObject", "Sketch013")
body13.addObject(sketch14)
sketch14.AttachmentSupport = (doc.getObject("XY_Plane012"), [""])
sketch14.MapMode = "FlatFace"
sketch14.addGeometry([
    Part.LineSegment(V(-190, -914, 0), V(-190, -1549, 0)),
    Part.LineSegment(V(-190, -1549, 0), V(1562, -1549, 0)),
    Part.LineSegment(V(1562, -1549, 0), V(1562, -914, 0)),
    Part.LineSegment(V(1562, -914, 0), V(-190, -914, 0)),
], False)
sketch14.addConstraint([
    Sketcher.Constraint("Coincident", 0, 2, 1, 1),
    Sketcher.Constraint("Coincident", 1, 2, 2, 1),
    Sketcher.Constraint("Coincident", 2, 2, 3, 1),
    Sketcher.Constraint("Coincident", 3, 2, 0, 1),
    Sketcher.Constraint("Vertical", 0),
    Sketcher.Constraint("Horizontal", 1),
    Sketcher.Constraint("Vertical", 2),
    Sketcher.Constraint("Horizontal", 3),
    Sketcher.Constraint("DistanceX", 1, 1, 1, 2, Q("69 in")),
    Sketcher.Constraint("DistanceY", 0, 2, 0, 1, Q("25 in")),
    Sketcher.Constraint("DistanceY", 0, 2, -1, 1, Q("61 in")),
    Sketcher.Constraint("DistanceX", 0, 2, -1, 1, Q("7.5 in")),
])
pad14 = doc.addObject("PartDesign::Pad", "Pad013")
body13.addObject(pad14)
pad14.Profile = sketch14
pad14.Length = Q("12 in")
body14 = doc.addObject("PartDesign::Body", "Body013")

# Sketch on XY plane
sketch15 = doc.addObject("Sketcher::SketchObject", "Sketch014")
body14.addObject(sketch15)
sketch15.AttachmentSupport = (doc.getObject("XY_Plane013"), [""])
sketch15.MapMode = "FlatFace"
sketch15.addGeometry([
    Part.LineSegment(V(-2019, 2007, 0), V(-2019, -2007, 0)),  # 0
    Part.LineSegment(V(-2019, -2007, 0), V(2019, -2007, 0)),  # 1
    Part.LineSegment(V(2019, -2007, 0), V(2019, 2007, 0)),  # 2
    Part.LineSegment(V(2019, 2007, 0), V(-2019, 2007, 0)),  # 3
    Part.LineSegment(V(1714, -1702, 0), V(-1714, -1702, 0)),  # 4
    Part.LineSegment(V(-1714, -1702, 0), V(-1714, 1702, 0)),  # 5
    Part.LineSegment(V(-1714, 1702, 0), V(1714, 1702, 0)),  # 6
    Part.LineSegment(V(1714, 1702, 0), V(1714, -1702, 0)),  # 7
], False)
sketch15.addConstraint([
    Sketcher.Constraint("Coincident", 0, 2, 1, 1),
    Sketcher.Constraint("Coincident", 1, 2, 2, 1),
    Sketcher.Constraint("Coincident", 2, 2, 3, 1),
    Sketcher.Constraint("Coincident", 3, 2, 0, 1),
    Sketcher.Constraint("Coincident", 4, 2, 5, 1),
    Sketcher.Constraint("Coincident", 5, 2, 6, 1),
    Sketcher.Constraint("Coincident", 6, 2, 7, 1),
    Sketcher.Constraint("Coincident", 7, 2, 4, 1),
    Sketcher.Constraint("Vertical", 0),
    Sketcher.Constraint("Horizontal", 1),
    Sketcher.Constraint("Vertical", 2),
    Sketcher.Constraint("Horizontal", 3),
    Sketcher.Constraint("Horizontal", 4),
    Sketcher.Constraint("Vertical", 5),
    Sketcher.Constraint("Horizontal", 6),
    Sketcher.Constraint("Vertical", 7),
    Sketcher.Constraint("Symmetric", 0, 2, 2, 2, -1, 1),
    Sketcher.Constraint("Symmetric", 4, 2, 6, 2, -1, 1),
    Sketcher.Constraint("DistanceX", 1, 1, 1, 2, Q("159 in")),
    Sketcher.Constraint("DistanceX", 4, 2, 4, 1, Q("135 in")),
    Sketcher.Constraint("DistanceY", 0, 2, 0, 1, Q("158 in")),
    Sketcher.Constraint("DistanceY", 5, 1, 5, 2, Q("134 in")),
])
pad15 = doc.addObject("PartDesign::Pad", "Pad014")
body14.addObject(pad15)
pad15.Profile = sketch15
pad15.Length = Q("12 in")
body15 = doc.addObject("PartDesign::Body", "Body014")

# Sketch on XY plane
sketch16 = doc.addObject("Sketcher::SketchObject", "Sketch015")
body15.addObject(sketch16)
sketch16.AttachmentSupport = (doc.getObject("XY_Plane014"), [""])
sketch16.MapMode = "FlatFace"
sketch16.addGeometry([
    Part.LineSegment(V(-2324, 2007, 0), V(-6363, 2007, 0)),  # 0
    Part.LineSegment(V(-6363, 2007, 0), V(-6363, -2007, 0)),  # 1
    Part.LineSegment(V(-6363, -2007, 0), V(-4035, -2007, 0)),  # 2
    Part.LineSegment(V(-4035, -2007, 0), V(-4035, -1854, 0)),  # 3
    Part.LineSegment(V(-4035, -1854, 0), V(-3426, -1854, 0)),  # 4
    Part.LineSegment(V(-3426, -1854, 0), V(-3426, -2007, 0)),  # 5
    Part.LineSegment(V(-3426, -2007, 0), V(-2324, -2007, 0)),  # 6
    Part.LineSegment(V(-2324, -2007, 0), V(-2324, 2007, 0)),  # 7
], False)
sketch16.addConstraint([
    Sketcher.Constraint("Coincident", 0, 2, 1, 1),
    Sketcher.Constraint("Coincident", 1, 2, 2, 1),
    Sketcher.Constraint("Coincident", 2, 2, 3, 1),
    Sketcher.Constraint("Coincident", 3, 2, 4, 1),
    Sketcher.Constraint("Coincident", 4, 2, 5, 1),
    Sketcher.Constraint("Coincident", 5, 2, 6, 1),
    Sketcher.Constraint("Coincident", 6, 2, 7, 1),
    Sketcher.Constraint("Coincident", 7, 2, 0, 1),
    Sketcher.Constraint("Horizontal", 0),
    Sketcher.Constraint("Vertical", 1),
    Sketcher.Constraint("Horizontal", 2),
    Sketcher.Constraint("Vertical", 3),
    Sketcher.Constraint("Horizontal", 4),
    Sketcher.Constraint("Vertical", 5),
    Sketcher.Constraint("Horizontal", 6),
    Sketcher.Constraint("Vertical", 7),
    Sketcher.Constraint("Horizontal", 2, 2, 5, 2),
    Sketcher.Constraint("DistanceX", 0, 2, 0, 1, Q("159 in")),
    Sketcher.Constraint("DistanceX", 4, 1, 4, 2, Q("24 in")),
    Sketcher.Constraint("DistanceY", 1, 2, 1, 1, Q("158 in")),
    Sketcher.Constraint("DistanceY", 3, 1, 3, 2, Q("6 in")),
    Sketcher.Constraint("DistanceY", -1, 1, 0, 2, Q("79 in")),
    Sketcher.Constraint("DistanceX", 0, 2, -1, 1, Q("250.5 in")),
    Sketcher.Constraint("DistanceX", 2, 1, 2, 2, Q("2327.246032 mm")),
])
pad16 = doc.addObject("PartDesign::Pad", "Pad015")
body15.addObject(pad16)
pad16.Profile = sketch16
pad16.Length = Q("12 in")
body16 = doc.addObject("PartDesign::Body", "Body015")

# Sketch on XY plane
sketch17 = doc.addObject("Sketcher::SketchObject", "Sketch016")
body16.addObject(sketch17)
sketch17.AttachmentSupport = (doc.getObject("XY_Plane015"), [""])
sketch17.MapMode = "FlatFace"
sketch17.addGeometry([
    Part.LineSegment(V(-2781, -2904, 0), V(-2781, -2769, 0)),  # 0
    Part.LineSegment(V(-2781, -2769, 0), V(-5906, -2769, 0)),  # 1
    Part.LineSegment(V(-5906, -2769, 0), V(-5906, -3683, 0)),  # 2
    Part.LineSegment(V(-5906, -3683, 0), V(-2781, -3683, 0)),  # 3
    Part.LineSegment(V(-2781, -3683, 0), V(-2781, -3514, 0)),  # 4
    Part.LineSegment(V(-2781, -3514, 0), V(-2934, -3514, 0)),  # 5
    Part.LineSegment(V(-2934, -3514, 0), V(-2934, -2904, 0)),  # 6
    Part.LineSegment(V(-2934, -2904, 0), V(-2781, -2904, 0)),  # 7
], False)
sketch17.addConstraint([
    Sketcher.Constraint("Coincident", 0, 2, 1, 1),
    Sketcher.Constraint("Coincident", 1, 2, 2, 1),
    Sketcher.Constraint("Coincident", 2, 2, 3, 1),
    Sketcher.Constraint("Coincident", 3, 2, 4, 1),
    Sketcher.Constraint("Coincident", 4, 2, 5, 1),
    Sketcher.Constraint("Coincident", 5, 2, 6, 1),
    Sketcher.Constraint("Coincident", 6, 2, 7, 1),
    Sketcher.Constraint("Coincident", 7, 2, 0, 1),
    Sketcher.Constraint("Vertical", 0),
    Sketcher.Constraint("Horizontal", 1),
    Sketcher.Constraint("Vertical", 2),
    Sketcher.Constraint("Horizontal", 3),
    Sketcher.Constraint("Vertical", 4),
    Sketcher.Constraint("Horizontal", 5),
    Sketcher.Constraint("Vertical", 6),
    Sketcher.Constraint("Horizontal", 7),
    Sketcher.Constraint("Vertical", 0, 2, 3, 2),
    Sketcher.Constraint("DistanceX", 1, 2, 1, 1, Q("123 in")),
    Sketcher.Constraint("DistanceX", 5, 2, 5, 1, Q("6 in")),
    Sketcher.Constraint("DistanceY", 2, 2, 2, 1, Q("36 in")),
    Sketcher.Constraint("DistanceY", 6, 1, 6, 2, Q("24 in")),
    Sketcher.Constraint("DistanceY", 0, 2, -1, 1, Q("109 in")),
    Sketcher.Constraint("DistanceX", 0, 2, -1, 1, Q("109.5 in")),
    Sketcher.Constraint("DistanceY", 0, 1, 0, 2, Q("135.61319 mm")),
])
pad17 = doc.addObject("PartDesign::Pad", "Pad016")
body16.addObject(pad17)
pad17.Profile = sketch17
pad17.Length = Q("12 in")
body17 = doc.addObject("PartDesign::Body", "Body016")

# Sketch on XY plane
sketch18 = doc.addObject("Sketcher::SketchObject", "Sketch017")
body17.addObject(sketch18)
sketch18.AttachmentSupport = (doc.getObject("XY_Plane016"), [""])
sketch18.MapMode = "FlatFace"
sketch18.addGeometry([
    Part.LineSegment(V(-6363, -2311, 0), V(-6363, -4140, 0)),  # 0
    Part.LineSegment(V(-6363, -4140, 0), V(-2324, -4140, 0)),  # 1
    Part.LineSegment(V(-2324, -4140, 0), V(-2324, -2311, 0)),  # 2
    Part.LineSegment(V(-2324, -2311, 0), V(-6363, -2311, 0)),  # 3
    Part.LineSegment(V(-2629, -3835, 0), V(-6058, -3835, 0)),  # 4
    Part.LineSegment(V(-6058, -3835, 0), V(-6058, -2616, 0)),  # 5
    Part.LineSegment(V(-6058, -2616, 0), V(-2629, -2616, 0)),  # 6
    Part.LineSegment(V(-2629, -2616, 0), V(-2629, -3835, 0)),  # 7
], False)
sketch18.addConstraint([
    Sketcher.Constraint("Coincident", 0, 2, 1, 1),
    Sketcher.Constraint("Coincident", 1, 2, 2, 1),
    Sketcher.Constraint("Coincident", 2, 2, 3, 1),
    Sketcher.Constraint("Coincident", 3, 2, 0, 1),
    Sketcher.Constraint("Coincident", 4, 2, 5, 1),
    Sketcher.Constraint("Coincident", 5, 2, 6, 1),
    Sketcher.Constraint("Coincident", 6, 2, 7, 1),
    Sketcher.Constraint("Coincident", 7, 2, 4, 1),
    Sketcher.Constraint("Vertical", 0),
    Sketcher.Constraint("Horizontal", 1),
    Sketcher.Constraint("Vertical", 2),
    Sketcher.Constraint("Horizontal", 3),
    Sketcher.Constraint("Horizontal", 4),
    Sketcher.Constraint("Vertical", 5),
    Sketcher.Constraint("Horizontal", 6),
    Sketcher.Constraint("Vertical", 7),
    Sketcher.Constraint("DistanceX", 1, 1, 1, 2, Q("159 in")),
    Sketcher.Constraint("DistanceX", 4, 2, 4, 1, Q("135 in")),
    Sketcher.Constraint("DistanceY", 0, 2, 0, 1, Q("72 in")),
    Sketcher.Constraint("DistanceY", 5, 1, 5, 2, Q("48 in")),
    Sketcher.Constraint("DistanceY", 0, 2, -1, 1, Q("163 in")),
    Sketcher.Constraint("DistanceY", 4, 2, -1, 1, Q("151 in")),
    Sketcher.Constraint("DistanceX", 0, 2, 4, 2, Q("12 in")),
    Sketcher.Constraint("DistanceX", 0, 2, -1, 1, Q("250.5 in")),
])
pad18 = doc.addObject("PartDesign::Pad", "Pad017")
body17.addObject(pad18)
pad18.Profile = sketch18
pad18.Length = Q("12 in")
body18 = doc.addObject("PartDesign::Body", "Body017")

# Sketch on XY plane
sketch19 = doc.addObject("Sketcher::SketchObject", "Sketch018")
body18.addObject(sketch19)
sketch19.AttachmentSupport = (doc.getObject("XY_Plane017"), [""])
sketch19.MapMode = "FlatFace"
sketch19.addGeometry([
    Part.LineSegment(V(-4035, -1854, 0), V(-4035, -2007, 0)),
    Part.LineSegment(V(-4035, -2007, 0), V(-3426, -2007, 0)),
    Part.LineSegment(V(-3426, -2007, 0), V(-3426, -1854, 0)),
    Part.LineSegment(V(-3426, -1854, 0), V(-4035, -1854, 0)),
], False)
sketch19.addConstraint([
    Sketcher.Constraint("Coincident", 0, 2, 1, 1),
    Sketcher.Constraint("Coincident", 1, 2, 2, 1),
    Sketcher.Constraint("Coincident", 2, 2, 3, 1),
    Sketcher.Constraint("Coincident", 3, 2, 0, 1),
    Sketcher.Constraint("Vertical", 0),
    Sketcher.Constraint("Horizontal", 1),
    Sketcher.Constraint("Vertical", 2),
    Sketcher.Constraint("Horizontal", 3),
    Sketcher.Constraint("DistanceX", 1, 1, 1, 2, Q("24 in")),
    Sketcher.Constraint("DistanceY", 0, 2, 0, 1, Q("6 in")),
    Sketcher.Constraint("DistanceY", 0, 2, -1, 1, Q("79 in")),
    Sketcher.Constraint("DistanceX", 0, 2, -1, 1, Q("4035.453968 mm")),
])
pad19 = doc.addObject("PartDesign::Pad", "Pad018")
body18.addObject(pad19)
pad19.Profile = sketch19
pad19.Length = Q("24 in")
body19 = doc.addObject("PartDesign::Body", "Body018")

# Sketch on XY plane
sketch20 = doc.addObject("Sketcher::SketchObject", "Sketch019")
body19.addObject(sketch20)
sketch20.AttachmentSupport = (doc.getObject("XY_Plane018"), [""])
sketch20.MapMode = "FlatFace"
sketch20.addGeometry([
    Part.LineSegment(V(-2934, -2904, 0), V(-2934, -3514, 0)),
    Part.LineSegment(V(-2934, -3514, 0), V(-2781, -3514, 0)),
    Part.LineSegment(V(-2781, -3514, 0), V(-2781, -2904, 0)),
    Part.LineSegment(V(-2781, -2904, 0), V(-2934, -2904, 0)),
], False)
sketch20.addConstraint([
    Sketcher.Constraint("Coincident", 0, 2, 1, 1),
    Sketcher.Constraint("Coincident", 1, 2, 2, 1),
    Sketcher.Constraint("Coincident", 2, 2, 3, 1),
    Sketcher.Constraint("Coincident", 3, 2, 0, 1),
    Sketcher.Constraint("Vertical", 0),
    Sketcher.Constraint("Horizontal", 1),
    Sketcher.Constraint("Vertical", 2),
    Sketcher.Constraint("Horizontal", 3),
    Sketcher.Constraint("DistanceX", 1, 1, 1, 2, Q("6 in")),
    Sketcher.Constraint("DistanceY", 0, 2, 0, 1, Q("24 in")),
    Sketcher.Constraint("DistanceX", 0, 2, -1, 1, Q("115.5 in")),
    Sketcher.Constraint("DistanceY", 0, 2, -1, 1, Q("3513.81319 mm")),
])
pad20 = doc.addObject("PartDesign::Pad", "Pad019")
body19.addObject(pad20)
pad20.Profile = sketch20
pad20.Length = Q("24 in")

doc.recompute()
